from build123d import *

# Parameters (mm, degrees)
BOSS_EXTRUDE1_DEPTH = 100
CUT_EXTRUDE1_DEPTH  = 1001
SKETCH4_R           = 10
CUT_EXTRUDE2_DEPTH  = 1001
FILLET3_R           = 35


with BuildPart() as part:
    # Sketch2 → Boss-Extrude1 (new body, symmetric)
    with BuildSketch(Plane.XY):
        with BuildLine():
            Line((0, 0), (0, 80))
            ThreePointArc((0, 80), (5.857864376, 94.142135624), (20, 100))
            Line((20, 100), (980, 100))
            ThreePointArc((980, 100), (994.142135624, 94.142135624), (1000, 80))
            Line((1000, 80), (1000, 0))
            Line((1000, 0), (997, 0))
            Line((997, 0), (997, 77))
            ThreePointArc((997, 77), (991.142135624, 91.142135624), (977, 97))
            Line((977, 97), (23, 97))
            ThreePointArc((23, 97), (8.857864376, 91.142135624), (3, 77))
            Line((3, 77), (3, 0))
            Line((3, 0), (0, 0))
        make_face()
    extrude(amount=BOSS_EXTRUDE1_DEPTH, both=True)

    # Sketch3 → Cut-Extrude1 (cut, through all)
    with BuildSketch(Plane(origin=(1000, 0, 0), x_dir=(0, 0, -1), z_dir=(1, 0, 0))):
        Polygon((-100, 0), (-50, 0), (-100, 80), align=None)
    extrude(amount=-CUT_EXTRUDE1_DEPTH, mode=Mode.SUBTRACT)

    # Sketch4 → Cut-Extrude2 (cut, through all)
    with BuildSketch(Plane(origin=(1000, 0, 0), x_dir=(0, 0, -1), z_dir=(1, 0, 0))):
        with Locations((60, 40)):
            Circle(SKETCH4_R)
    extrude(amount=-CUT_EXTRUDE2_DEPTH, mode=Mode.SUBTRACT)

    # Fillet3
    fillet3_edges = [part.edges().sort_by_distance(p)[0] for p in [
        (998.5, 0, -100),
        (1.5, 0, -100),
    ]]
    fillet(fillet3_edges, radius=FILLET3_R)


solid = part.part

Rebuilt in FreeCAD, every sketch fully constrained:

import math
import FreeCAD as App
import Part
import Sketcher

V = App.Vector


def edges_at(feature, points):
    """Names of the edges that pass closest to the given points."""
    edges = feature.Shape.Edges
    near = lambda p: min(range(len(edges)), key=lambda i: edges[i].distToShape(Part.Vertex(*p))[0])
    return sorted({f"Edge{near(p) + 1}" for p in points})


def add_polygon(sketch, points):
    """Adds a closed chain of lines whose ends are joined by coincident constraints."""
    first, n = sketch.GeometryCount, len(points)
    for a, b in zip(points, points[1:] + points[:1]):
        sketch.addGeometry(Part.LineSegment(App.Vector(*a, 0), App.Vector(*b, 0)), False)
    for i in range(n):
        sketch.addConstraint(Sketcher.Constraint("Coincident", first + i, 2, first + (i + 1) % n, 1))

doc = App.newDocument("Part")
body = doc.addObject("PartDesign::Body", "Body")

sketch1 = doc.addObject("Sketcher::SketchObject", "Sketch")
body.addObject(sketch1)
sketch1.AttachmentSupport = (doc.XY_Plane, [""])
sketch1.MapMode = "FlatFace"
sketch1.addGeometry(Part.LineSegment(V(0, 80, 0), V(0, 0, 0)), False)
sketch1.addGeometry(Part.LineSegment(V(0, 0, 0), V(3, 0, 0)), False)
sketch1.addGeometry(Part.LineSegment(V(3, 0, 0), V(3, 77, 0)), False)
sketch1.addGeometry(Part.ArcOfCircle(Part.Circle(V(23, 77, 0), V(0, 0, 1), 20), math.radians(90), math.radians(180)), False)
sketch1.addGeometry(Part.LineSegment(V(23, 97, 0), V(977, 97, 0)), False)
sketch1.addGeometry(Part.ArcOfCircle(Part.Circle(V(977, 77, 0), V(0, 0, 1), 20), math.radians(0), math.radians(90)), False)
sketch1.addGeometry(Part.LineSegment(V(997, 77, 0), V(997, 0, 0)), False)
sketch1.addGeometry(Part.LineSegment(V(997, 0, 0), V(1000, 0, 0)), False)
sketch1.addGeometry(Part.LineSegment(V(1000, 0, 0), V(1000, 80, 0)), False)
sketch1.addGeometry(Part.ArcOfCircle(Part.Circle(V(980, 80, 0), V(0, 0, 1), 20), math.radians(0), math.radians(90)), False)
sketch1.addGeometry(Part.LineSegment(V(980, 100, 0), V(20, 100, 0)), False)
sketch1.addGeometry(Part.ArcOfCircle(Part.Circle(V(20, 80, 0), V(0, 0, 1), 20), math.radians(90), math.radians(180)), False)
sketch1.addConstraint(Sketcher.Constraint("Coincident", 0, 2, 1, 1))
sketch1.addConstraint(Sketcher.Constraint("Coincident", 1, 2, 2, 1))
sketch1.addConstraint(Sketcher.Constraint("Tangent", 2, 2, 3, 2))
sketch1.addConstraint(Sketcher.Constraint("Tangent", 3, 1, 4, 1))
sketch1.addConstraint(Sketcher.Constraint("Tangent", 4, 2, 5, 2))
sketch1.addConstraint(Sketcher.Constraint("Tangent", 5, 1, 6, 1))
sketch1.addConstraint(Sketcher.Constraint("Coincident", 6, 2, 7, 1))
sketch1.addConstraint(Sketcher.Constraint("Coincident", 7, 2, 8, 1))
sketch1.addConstraint(Sketcher.Constraint("Tangent", 8, 2, 9, 1))
sketch1.addConstraint(Sketcher.Constraint("Tangent", 9, 2, 10, 1))
sketch1.addConstraint(Sketcher.Constraint("Tangent", 10, 2, 11, 1))
sketch1.addConstraint(Sketcher.Constraint("Tangent", 11, 2, 0, 1))
sketch1.addConstraint(Sketcher.Constraint("Vertical", 0))
sketch1.addConstraint(Sketcher.Constraint("Horizontal", 1))
sketch1.addConstraint(Sketcher.Constraint("Vertical", 2))
sketch1.addConstraint(Sketcher.Constraint("Horizontal", 4))
sketch1.addConstraint(Sketcher.Constraint("Vertical", 6))
sketch1.addConstraint(Sketcher.Constraint("Horizontal", 7))
sketch1.addConstraint(Sketcher.Constraint("Vertical", 8))
sketch1.addConstraint(Sketcher.Constraint("Horizontal", 10))
sketch1.addConstraint(Sketcher.Constraint("Coincident", 0, 2, -1, 1))
sketch1.addConstraint(Sketcher.Constraint("Equal", 3, 5))
sketch1.addConstraint(Sketcher.Constraint("Equal", 5, 9))
sketch1.addConstraint(Sketcher.Constraint("Equal", 9, 11))
sketch1.addConstraint(Sketcher.Constraint("PointOnObject", 6, 2, -1))
sketch1.addConstraint(Sketcher.Constraint("Equal", 1, 7))
sketch1.addConstraint(Sketcher.Constraint("Radius", 3, 20.0))
sketch1.addConstraint(Sketcher.Constraint("DistanceX", 1, 1, 1, 2, 3.0))
sketch1.addConstraint(Sketcher.Constraint("DistanceX", 4, 1, 4, 2, 954.0))
sketch1.addConstraint(Sketcher.Constraint("DistanceY", 0, 2, 0, 1, 80.0))
sketch1.addConstraint(Sketcher.Constraint("DistanceY", 2, 1, 2, 2, 77.0))
pad1 = doc.addObject("PartDesign::Pad", "Pad")
body.addObject(pad1)
pad1.Profile = sketch1
pad1.Length = 200
pad1.Midplane = True

sketch2 = doc.addObject("Sketcher::SketchObject", "Sketch001")
body.addObject(sketch2)
sketch2.AttachmentSupport = (doc.YZ_Plane, [""])
sketch2.MapMode = "FlatFace"
sketch2.AttachmentOffset = App.Placement(V(0, 0, 1000), App.Rotation())
add_polygon(sketch2, [(0, 100), (0, 50), (80, 100)])
sketch2.addConstraint(Sketcher.Constraint("Vertical", 0))
sketch2.addConstraint(Sketcher.Constraint("Horizontal", 2))
sketch2.addConstraint(Sketcher.Constraint("PointOnObject", 0, 2, -2))
sketch2.addConstraint(Sketcher.Constraint("DistanceX", 2, 2, 2, 1, 80.0))
sketch2.addConstraint(Sketcher.Constraint("DistanceY", 0, 2, 0, 1, 50.0))
sketch2.addConstraint(Sketcher.Constraint("DistanceY", -1, 1, 0, 2, 50.0))
pocket1 = doc.addObject("PartDesign::Pocket", "Pocket")
body.addObject(pocket1)
pocket1.Profile = sketch2
pocket1.Type = "ThroughAll"

sketch3 = doc.addObject("Sketcher::SketchObject", "Sketch002")
body.addObject(sketch3)
sketch3.AttachmentSupport = (doc.YZ_Plane, [""])
sketch3.MapMode = "FlatFace"
sketch3.AttachmentOffset = App.Placement(V(0, 0, 1000), App.Rotation())
sketch3.addGeometry(Part.Circle(V(40, -60, 0), V(0, 0, 1), 10), False)
sketch3.addConstraint(Sketcher.Constraint("Diameter", 0, 20.0))
sketch3.addConstraint(Sketcher.Constraint("DistanceX", -1, 1, 0, 3, 40.0))
sketch3.addConstraint(Sketcher.Constraint("DistanceY", 0, 3, -1, 1, 60.0))
pocket2 = doc.addObject("PartDesign::Pocket", "Pocket001")
body.addObject(pocket2)
pocket2.Profile = sketch3
pocket2.Type = "ThroughAll"
doc.recompute()

fillet = doc.addObject("PartDesign::Fillet", "Fillet")
body.addObject(fillet)
fillet.Base = (pocket2, edges_at(pocket2, [(998.5, 0, -100), (1.5, 0, -100)]))
fillet.Radius = 35

doc.recompute()
